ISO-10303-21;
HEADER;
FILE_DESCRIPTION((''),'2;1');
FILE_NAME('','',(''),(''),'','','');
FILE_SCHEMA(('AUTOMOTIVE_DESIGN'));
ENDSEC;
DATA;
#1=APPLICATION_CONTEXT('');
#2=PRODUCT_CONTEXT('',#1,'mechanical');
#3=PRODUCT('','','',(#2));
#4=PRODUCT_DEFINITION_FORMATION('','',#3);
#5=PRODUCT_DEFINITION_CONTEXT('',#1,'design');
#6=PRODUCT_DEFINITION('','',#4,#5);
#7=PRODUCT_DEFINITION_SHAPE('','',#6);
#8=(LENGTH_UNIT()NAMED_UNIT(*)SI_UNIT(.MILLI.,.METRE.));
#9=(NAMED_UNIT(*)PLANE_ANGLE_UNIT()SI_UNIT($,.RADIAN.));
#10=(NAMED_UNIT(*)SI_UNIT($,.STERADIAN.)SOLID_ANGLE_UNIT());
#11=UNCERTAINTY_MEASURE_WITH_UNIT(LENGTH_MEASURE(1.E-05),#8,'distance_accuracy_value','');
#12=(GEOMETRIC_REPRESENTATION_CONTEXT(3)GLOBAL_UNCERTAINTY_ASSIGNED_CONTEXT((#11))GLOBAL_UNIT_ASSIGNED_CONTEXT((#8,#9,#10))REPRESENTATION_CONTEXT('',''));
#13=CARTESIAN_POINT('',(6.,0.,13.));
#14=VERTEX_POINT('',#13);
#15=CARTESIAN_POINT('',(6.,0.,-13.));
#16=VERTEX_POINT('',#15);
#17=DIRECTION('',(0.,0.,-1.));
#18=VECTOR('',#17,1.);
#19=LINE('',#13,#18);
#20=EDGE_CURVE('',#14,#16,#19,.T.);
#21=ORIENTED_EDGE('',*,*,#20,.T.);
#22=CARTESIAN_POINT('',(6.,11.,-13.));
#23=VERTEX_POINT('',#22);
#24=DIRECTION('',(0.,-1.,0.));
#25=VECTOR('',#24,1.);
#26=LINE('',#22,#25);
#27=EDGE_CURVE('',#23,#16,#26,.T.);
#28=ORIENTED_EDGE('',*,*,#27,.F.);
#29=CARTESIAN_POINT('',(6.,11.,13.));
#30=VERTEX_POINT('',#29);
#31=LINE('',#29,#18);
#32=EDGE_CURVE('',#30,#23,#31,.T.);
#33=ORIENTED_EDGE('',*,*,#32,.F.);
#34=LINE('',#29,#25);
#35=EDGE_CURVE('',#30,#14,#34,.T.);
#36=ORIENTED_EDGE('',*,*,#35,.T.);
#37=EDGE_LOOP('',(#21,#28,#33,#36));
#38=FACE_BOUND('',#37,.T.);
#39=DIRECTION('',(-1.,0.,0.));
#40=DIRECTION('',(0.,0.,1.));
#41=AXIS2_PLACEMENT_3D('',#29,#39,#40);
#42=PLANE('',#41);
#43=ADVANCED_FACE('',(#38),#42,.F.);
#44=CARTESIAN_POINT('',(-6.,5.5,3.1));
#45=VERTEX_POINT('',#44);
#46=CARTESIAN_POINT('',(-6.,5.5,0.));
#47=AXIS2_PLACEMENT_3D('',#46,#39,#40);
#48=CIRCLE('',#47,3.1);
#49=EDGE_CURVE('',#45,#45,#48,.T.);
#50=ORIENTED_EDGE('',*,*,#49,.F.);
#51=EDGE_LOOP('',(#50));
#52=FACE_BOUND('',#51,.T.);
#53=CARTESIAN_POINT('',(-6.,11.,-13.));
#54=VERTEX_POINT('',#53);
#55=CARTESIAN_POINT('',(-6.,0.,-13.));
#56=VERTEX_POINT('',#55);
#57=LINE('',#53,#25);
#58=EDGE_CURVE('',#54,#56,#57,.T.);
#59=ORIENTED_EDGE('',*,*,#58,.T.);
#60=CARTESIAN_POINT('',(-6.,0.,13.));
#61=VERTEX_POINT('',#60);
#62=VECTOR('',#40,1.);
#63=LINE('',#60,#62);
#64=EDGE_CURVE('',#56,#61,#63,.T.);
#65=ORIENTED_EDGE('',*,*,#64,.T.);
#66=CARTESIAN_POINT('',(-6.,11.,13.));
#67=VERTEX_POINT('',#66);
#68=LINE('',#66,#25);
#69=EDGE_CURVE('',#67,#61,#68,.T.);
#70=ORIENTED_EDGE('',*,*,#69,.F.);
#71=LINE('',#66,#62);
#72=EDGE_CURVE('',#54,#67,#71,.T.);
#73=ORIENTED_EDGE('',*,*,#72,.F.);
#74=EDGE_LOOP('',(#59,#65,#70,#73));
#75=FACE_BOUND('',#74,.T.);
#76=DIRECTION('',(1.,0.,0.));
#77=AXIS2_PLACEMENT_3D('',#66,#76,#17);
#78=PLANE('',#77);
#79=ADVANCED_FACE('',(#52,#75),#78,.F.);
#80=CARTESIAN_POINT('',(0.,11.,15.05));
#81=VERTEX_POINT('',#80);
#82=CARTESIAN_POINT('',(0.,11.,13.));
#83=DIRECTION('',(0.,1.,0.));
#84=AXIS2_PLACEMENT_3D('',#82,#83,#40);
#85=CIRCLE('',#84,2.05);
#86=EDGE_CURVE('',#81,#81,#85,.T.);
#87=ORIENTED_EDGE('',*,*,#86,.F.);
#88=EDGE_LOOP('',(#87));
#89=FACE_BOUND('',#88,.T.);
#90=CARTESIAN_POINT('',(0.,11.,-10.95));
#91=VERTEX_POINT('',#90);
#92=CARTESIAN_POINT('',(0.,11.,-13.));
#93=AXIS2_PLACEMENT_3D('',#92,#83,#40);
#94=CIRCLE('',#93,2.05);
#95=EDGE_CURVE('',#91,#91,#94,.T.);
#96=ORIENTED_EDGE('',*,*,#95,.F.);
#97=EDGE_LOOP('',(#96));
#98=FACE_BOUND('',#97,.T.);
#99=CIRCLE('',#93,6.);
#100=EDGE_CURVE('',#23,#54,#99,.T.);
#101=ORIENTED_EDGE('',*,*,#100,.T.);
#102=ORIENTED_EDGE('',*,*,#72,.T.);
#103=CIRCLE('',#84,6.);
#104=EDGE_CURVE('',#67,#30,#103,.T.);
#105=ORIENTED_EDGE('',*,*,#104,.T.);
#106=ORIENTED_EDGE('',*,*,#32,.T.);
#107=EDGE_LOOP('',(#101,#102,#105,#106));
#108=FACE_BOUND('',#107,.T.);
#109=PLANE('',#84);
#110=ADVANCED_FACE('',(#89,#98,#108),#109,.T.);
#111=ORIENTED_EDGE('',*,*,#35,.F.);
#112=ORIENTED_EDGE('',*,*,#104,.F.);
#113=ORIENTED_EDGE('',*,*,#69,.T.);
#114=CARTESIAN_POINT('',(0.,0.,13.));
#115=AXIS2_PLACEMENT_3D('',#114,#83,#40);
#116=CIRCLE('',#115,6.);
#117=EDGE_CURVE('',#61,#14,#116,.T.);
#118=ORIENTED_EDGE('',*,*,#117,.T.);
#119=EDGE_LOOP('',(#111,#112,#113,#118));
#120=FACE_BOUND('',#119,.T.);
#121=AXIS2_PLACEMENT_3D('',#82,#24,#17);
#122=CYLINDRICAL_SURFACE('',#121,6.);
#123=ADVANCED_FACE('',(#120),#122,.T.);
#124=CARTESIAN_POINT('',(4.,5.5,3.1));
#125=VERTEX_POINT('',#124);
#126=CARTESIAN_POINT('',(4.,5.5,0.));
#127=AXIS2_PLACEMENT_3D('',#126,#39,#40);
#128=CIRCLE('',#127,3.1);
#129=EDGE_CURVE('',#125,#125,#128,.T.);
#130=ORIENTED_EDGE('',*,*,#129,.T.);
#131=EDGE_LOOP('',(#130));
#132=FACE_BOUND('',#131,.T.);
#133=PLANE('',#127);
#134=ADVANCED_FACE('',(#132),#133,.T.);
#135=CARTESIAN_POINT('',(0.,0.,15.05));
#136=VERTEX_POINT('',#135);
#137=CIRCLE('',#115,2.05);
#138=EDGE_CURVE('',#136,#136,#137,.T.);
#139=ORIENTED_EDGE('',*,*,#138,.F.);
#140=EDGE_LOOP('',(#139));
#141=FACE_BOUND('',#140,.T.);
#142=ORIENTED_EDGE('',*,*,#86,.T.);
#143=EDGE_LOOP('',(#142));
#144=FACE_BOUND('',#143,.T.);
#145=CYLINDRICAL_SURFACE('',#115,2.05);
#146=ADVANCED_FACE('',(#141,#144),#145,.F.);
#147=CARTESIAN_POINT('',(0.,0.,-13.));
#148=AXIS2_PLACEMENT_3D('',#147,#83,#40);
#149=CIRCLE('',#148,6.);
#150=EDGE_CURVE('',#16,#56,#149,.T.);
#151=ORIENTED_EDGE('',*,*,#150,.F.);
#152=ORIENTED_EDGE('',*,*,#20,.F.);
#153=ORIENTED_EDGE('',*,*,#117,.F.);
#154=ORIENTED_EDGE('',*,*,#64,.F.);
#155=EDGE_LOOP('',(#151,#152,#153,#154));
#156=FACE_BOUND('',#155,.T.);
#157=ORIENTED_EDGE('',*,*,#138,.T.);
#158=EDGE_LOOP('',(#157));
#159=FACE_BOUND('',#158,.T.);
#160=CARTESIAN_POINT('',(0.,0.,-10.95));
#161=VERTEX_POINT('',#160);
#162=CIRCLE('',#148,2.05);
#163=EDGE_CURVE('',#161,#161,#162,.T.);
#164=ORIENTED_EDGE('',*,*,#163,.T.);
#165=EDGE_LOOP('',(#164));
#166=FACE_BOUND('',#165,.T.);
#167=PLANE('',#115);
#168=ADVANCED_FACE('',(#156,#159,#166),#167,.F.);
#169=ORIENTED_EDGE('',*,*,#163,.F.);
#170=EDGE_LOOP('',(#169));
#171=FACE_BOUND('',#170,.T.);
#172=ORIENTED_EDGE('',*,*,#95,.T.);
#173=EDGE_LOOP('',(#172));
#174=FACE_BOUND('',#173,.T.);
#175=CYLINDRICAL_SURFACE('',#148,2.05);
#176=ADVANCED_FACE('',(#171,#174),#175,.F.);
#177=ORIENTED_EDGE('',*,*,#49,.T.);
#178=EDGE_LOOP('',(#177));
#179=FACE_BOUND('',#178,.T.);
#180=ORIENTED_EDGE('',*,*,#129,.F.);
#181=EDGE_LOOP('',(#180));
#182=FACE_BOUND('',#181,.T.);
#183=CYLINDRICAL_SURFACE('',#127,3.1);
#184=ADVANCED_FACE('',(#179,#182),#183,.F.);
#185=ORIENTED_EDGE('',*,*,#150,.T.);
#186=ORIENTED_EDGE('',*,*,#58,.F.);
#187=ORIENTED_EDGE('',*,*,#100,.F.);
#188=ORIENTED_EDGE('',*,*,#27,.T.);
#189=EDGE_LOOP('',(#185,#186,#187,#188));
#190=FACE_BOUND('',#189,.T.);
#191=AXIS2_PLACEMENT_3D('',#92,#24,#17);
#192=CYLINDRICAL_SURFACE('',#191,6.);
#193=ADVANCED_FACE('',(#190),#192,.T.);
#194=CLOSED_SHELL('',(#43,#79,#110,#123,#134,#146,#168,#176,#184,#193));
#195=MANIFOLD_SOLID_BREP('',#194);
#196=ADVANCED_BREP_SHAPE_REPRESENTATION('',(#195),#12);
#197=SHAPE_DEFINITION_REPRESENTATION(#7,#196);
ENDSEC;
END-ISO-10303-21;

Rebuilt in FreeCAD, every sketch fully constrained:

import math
import FreeCAD as App
import Part
import Sketcher

doc = App.newDocument("Part")
body = doc.addObject("PartDesign::Body", "Body")

sketch1 = doc.addObject("Sketcher::SketchObject", "Sketch")
body.addObject(sketch1)
sketch1.AttachmentSupport = (doc.XZ_Plane, [""])
sketch1.MapMode = "FlatFace"
sketch1.addGeometry([
    Part.LineSegment(App.Vector(-6, -13, 0), App.Vector(-6, 13, 0)),
    Part.ArcOfCircle(Part.Circle(App.Vector(0, 13, 0), App.Vector(0, 0, 1), 6), math.radians(0), math.radians(180)),
    Part.LineSegment(App.Vector(6, 13, 0), App.Vector(6, -13, 0)),
    Part.ArcOfCircle(Part.Circle(App.Vector(0, -13, 0), App.Vector(0, 0, 1), 6), math.radians(180), math.radians(360)),
], False)
sketch1.addConstraint([
    Sketcher.Constraint("Tangent", 0, 2, 1, 2),
    Sketcher.Constraint("Tangent", 1, 1, 2, 1),
    Sketcher.Constraint("Tangent", 2, 2, 3, 2),
    Sketcher.Constraint("Tangent", 3, 1, 0, 1),
    Sketcher.Constraint("Vertical", 0),
    Sketcher.Constraint("Vertical", 2),
    Sketcher.Constraint("Symmetric", 1, 3, 3, 3, -1, 1),
    Sketcher.Constraint("Radius", 1, 6.0),
    Sketcher.Constraint("DistanceY", 0, 1, 0, 2, 26.0),
])
pad1 = doc.addObject("PartDesign::Pad", "Pad")
body.addObject(pad1)
pad1.Profile = sketch1
pad1.Length = 11
pad1.Reversed = True

sketch2 = doc.addObject("Sketcher::SketchObject", "Sketch001")
body.addObject(sketch2)
sketch2.AttachmentSupport = (doc.XZ_Plane, [""])
sketch2.MapMode = "FlatFace"
sketch2.AttachmentOffset = App.Placement(App.Vector(0, 0, -11), App.Rotation())
sketch2.addGeometry([
    Part.Circle(App.Vector(0, -13, 0), App.Vector(0, 0, 1), 2.05),
    Part.Circle(App.Vector(0, 13, 0), App.Vector(0, 0, 1), 2.05),
], False)
sketch2.addConstraint([
    Sketcher.Constraint("Equal", 0, 1),
    Sketcher.Constraint("Symmetric", 0, 3, 1, 3, -1, 1),
    Sketcher.Constraint("PointOnObject", 0, 3, -2),
    Sketcher.Constraint("Diameter", 0, 4.1),
    Sketcher.Constraint("DistanceY", 0, 3, -1, 1, 13.0),
])
pocket1 = doc.addObject("PartDesign::Pocket", "Pocket")
body.addObject(pocket1)
pocket1.Profile = sketch2
pocket1.Type = "ThroughAll"
pocket1.Reversed = True

sketch3 = doc.addObject("Sketcher::SketchObject", "Sketch002")
body.addObject(sketch3)
sketch3.AttachmentSupport = (doc.YZ_Plane, [""])
sketch3.MapMode = "FlatFace"
sketch3.AttachmentOffset = App.Placement(App.Vector(0, 0, -6), App.Rotation())
sketch3.addGeometry(Part.Circle(App.Vector(5.5, 0, 0), App.Vector(0, 0, 1), 3.1), False)
sketch3.addConstraint([
    Sketcher.Constraint("PointOnObject", 0, 3, -1),
    Sketcher.Constraint("Diameter", 0, 6.2),
    Sketcher.Constraint("DistanceX", -1, 1, 0, 3, 5.5),
])
pocket2 = doc.addObject("PartDesign::Pocket", "Pocket001")
body.addObject(pocket2)
pocket2.Profile = sketch3
pocket2.Length = 10
pocket2.Reversed = True

doc.recompute()
